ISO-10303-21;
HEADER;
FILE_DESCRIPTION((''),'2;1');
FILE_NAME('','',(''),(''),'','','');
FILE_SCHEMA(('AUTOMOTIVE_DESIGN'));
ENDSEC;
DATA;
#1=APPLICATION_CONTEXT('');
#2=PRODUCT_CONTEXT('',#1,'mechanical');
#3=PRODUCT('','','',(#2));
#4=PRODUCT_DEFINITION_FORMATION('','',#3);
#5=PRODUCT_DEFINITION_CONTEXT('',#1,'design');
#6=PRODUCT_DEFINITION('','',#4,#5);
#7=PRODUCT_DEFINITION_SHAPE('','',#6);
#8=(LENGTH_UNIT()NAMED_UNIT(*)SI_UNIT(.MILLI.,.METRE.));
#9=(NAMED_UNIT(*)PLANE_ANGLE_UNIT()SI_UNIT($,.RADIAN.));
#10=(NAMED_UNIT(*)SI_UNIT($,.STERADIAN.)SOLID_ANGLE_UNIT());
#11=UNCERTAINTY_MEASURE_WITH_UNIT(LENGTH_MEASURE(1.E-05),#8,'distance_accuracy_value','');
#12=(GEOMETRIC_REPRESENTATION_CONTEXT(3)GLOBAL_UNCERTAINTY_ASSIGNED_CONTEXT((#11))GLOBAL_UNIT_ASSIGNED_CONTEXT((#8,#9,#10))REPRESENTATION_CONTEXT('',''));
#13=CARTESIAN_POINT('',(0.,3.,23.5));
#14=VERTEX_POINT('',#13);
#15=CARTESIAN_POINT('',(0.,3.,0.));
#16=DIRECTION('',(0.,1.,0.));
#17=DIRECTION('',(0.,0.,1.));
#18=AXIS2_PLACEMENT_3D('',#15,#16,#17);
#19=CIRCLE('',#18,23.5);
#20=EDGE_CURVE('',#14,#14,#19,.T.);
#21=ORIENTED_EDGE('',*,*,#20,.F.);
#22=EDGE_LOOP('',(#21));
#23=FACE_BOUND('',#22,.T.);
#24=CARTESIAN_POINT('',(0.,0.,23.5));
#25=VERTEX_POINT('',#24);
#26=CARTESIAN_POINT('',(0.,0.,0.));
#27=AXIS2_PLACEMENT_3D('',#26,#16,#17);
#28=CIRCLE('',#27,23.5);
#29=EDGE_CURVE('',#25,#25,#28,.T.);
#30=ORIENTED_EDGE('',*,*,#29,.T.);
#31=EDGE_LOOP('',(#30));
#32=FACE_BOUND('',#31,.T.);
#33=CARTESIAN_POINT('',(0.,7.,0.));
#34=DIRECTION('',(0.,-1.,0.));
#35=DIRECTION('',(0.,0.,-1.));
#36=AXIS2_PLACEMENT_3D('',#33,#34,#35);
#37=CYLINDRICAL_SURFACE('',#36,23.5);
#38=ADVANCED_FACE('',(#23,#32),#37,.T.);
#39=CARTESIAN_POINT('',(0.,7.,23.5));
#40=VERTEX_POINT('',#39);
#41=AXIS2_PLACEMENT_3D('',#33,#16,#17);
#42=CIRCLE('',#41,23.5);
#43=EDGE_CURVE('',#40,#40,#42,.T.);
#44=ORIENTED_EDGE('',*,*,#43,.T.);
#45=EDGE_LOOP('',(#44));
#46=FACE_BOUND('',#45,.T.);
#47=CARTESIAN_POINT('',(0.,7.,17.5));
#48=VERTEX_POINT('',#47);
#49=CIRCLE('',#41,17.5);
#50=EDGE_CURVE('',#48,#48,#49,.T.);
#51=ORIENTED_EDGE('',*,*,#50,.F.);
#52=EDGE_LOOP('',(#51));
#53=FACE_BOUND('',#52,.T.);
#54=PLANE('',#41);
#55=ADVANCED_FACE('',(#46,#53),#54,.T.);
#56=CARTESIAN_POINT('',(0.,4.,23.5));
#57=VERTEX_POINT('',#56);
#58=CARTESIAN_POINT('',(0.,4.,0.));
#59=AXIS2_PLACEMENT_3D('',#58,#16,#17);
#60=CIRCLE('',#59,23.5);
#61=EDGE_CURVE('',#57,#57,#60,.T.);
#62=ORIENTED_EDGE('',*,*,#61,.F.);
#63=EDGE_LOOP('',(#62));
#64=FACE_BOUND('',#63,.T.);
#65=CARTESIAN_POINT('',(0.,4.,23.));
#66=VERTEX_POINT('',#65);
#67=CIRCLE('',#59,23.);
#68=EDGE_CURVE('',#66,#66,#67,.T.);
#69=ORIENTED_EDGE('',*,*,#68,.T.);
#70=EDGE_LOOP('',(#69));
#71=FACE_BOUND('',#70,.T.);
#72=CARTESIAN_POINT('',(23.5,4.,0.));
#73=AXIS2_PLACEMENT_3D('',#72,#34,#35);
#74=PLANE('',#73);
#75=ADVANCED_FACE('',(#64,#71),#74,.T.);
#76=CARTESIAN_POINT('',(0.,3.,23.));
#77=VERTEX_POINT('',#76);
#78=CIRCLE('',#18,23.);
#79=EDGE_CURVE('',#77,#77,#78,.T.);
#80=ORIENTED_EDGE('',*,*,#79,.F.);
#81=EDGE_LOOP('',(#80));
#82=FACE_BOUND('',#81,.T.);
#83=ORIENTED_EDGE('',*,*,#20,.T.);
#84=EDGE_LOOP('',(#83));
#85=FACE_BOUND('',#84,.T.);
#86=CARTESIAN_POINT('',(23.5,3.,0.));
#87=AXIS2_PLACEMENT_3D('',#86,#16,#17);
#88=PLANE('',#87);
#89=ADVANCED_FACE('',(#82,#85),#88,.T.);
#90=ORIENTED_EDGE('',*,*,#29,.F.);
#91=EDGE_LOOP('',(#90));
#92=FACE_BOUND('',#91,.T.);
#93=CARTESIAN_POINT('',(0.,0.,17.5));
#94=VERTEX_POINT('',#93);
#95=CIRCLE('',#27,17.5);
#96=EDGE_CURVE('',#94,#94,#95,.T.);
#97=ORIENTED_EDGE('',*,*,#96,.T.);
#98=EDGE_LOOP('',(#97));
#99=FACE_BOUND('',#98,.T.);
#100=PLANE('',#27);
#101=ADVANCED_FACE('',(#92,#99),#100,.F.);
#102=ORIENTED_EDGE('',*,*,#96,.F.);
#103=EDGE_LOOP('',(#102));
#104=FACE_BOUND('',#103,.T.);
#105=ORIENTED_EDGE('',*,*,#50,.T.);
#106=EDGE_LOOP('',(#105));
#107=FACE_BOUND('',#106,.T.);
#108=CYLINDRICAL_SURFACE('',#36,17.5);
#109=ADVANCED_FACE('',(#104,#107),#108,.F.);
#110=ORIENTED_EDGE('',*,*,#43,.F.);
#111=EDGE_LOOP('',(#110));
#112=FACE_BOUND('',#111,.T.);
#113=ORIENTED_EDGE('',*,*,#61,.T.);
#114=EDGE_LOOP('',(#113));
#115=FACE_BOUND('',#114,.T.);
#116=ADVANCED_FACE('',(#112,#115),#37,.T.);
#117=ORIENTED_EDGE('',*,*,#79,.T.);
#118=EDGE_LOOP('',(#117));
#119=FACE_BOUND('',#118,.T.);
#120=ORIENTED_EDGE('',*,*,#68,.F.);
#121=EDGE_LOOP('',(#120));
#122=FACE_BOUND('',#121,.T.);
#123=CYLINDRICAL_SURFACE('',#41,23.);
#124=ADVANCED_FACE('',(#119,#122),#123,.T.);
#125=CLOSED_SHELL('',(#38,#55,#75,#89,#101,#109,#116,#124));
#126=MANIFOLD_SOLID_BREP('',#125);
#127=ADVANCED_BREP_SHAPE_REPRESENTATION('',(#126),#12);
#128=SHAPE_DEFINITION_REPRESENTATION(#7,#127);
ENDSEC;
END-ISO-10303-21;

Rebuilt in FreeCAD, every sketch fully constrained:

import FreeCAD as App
import Part
import Sketcher
Q = App.Units.Quantity

doc = App.newDocument("Part")
body = doc.addObject("PartDesign::Body", "Body")

sketch1 = body.newObject("Sketcher::SketchObject", "Sketch")
sketch1.AttachmentSupport = (doc.getObject("XZ_Plane"), [""])
sketch1.MapMode = "FlatFace"
sketch1.addGeometry([
    Part.Circle(App.Vector(0, 0, 0), App.Vector(0, 0, 1), 24),
    Part.Circle(App.Vector(0, 0, 0), App.Vector(0, 0, 1), 18),
], False)
sketch1.addConstraint([
    Sketcher.Constraint("Coincident", 0, 3, -1, 1),
    Sketcher.Constraint("Coincident", 1, 3, -1, 1),
    Sketcher.Constraint("Diameter", 0, Q("47 mm")),
    Sketcher.Constraint("Diameter", 1, Q("35 mm")),
])
pad1 = body.newObject("PartDesign::Pad", "Pad")
pad1.Profile = sketch1
pad1.Length = 7
pad1.Reversed = True

sketch2 = body.newObject("Sketcher::SketchObject", "Sketch001")
sketch2.AttachmentSupport = (doc.getObject("XY_Plane"), [""])
sketch2.MapMode = "FlatFace"
sketch2.addGeometry([
    Part.LineSegment(App.Vector(23, 4, 0), App.Vector(23, 3, 0)),
    Part.LineSegment(App.Vector(23, 3, 0), App.Vector(23.5, 3, 0)),
    Part.LineSegment(App.Vector(23.5, 3, 0), App.Vector(23.5, 4, 0)),
    Part.LineSegment(App.Vector(23.5, 4, 0), App.Vector(23, 4, 0)),
], False)
sketch2.addConstraint([
    Sketcher.Constraint("Coincident", 0, 2, 1, 1),
    Sketcher.Constraint("Coincident", 1, 2, 2, 1),
    Sketcher.Constraint("Coincident", 2, 2, 3, 1),
    Sketcher.Constraint("Coincident", 3, 2, 0, 1),
    Sketcher.Constraint("Vertical", 0),
    Sketcher.Constraint("Horizontal", 1),
    Sketcher.Constraint("Vertical", 2),
    Sketcher.Constraint("Horizontal", 3),
    Sketcher.Constraint("DistanceY", 0, 2, 0, 1, Q("1 mm")),
    Sketcher.Constraint("DistanceX", 1, 1, 1, 2, Q("0.5 mm")),
    Sketcher.Constraint("DistanceX", -1, 1, 0, 2, Q("23 mm")),
    Sketcher.Constraint("DistanceY", -1, 1, 0, 2, Q("3 mm")),
])
groove = body.newObject("PartDesign::Groove", "Groove")
groove.Profile = sketch2
groove.ReferenceAxis = (sketch2, ["V_Axis"])
groove.Angle = 360

doc.recompute()
